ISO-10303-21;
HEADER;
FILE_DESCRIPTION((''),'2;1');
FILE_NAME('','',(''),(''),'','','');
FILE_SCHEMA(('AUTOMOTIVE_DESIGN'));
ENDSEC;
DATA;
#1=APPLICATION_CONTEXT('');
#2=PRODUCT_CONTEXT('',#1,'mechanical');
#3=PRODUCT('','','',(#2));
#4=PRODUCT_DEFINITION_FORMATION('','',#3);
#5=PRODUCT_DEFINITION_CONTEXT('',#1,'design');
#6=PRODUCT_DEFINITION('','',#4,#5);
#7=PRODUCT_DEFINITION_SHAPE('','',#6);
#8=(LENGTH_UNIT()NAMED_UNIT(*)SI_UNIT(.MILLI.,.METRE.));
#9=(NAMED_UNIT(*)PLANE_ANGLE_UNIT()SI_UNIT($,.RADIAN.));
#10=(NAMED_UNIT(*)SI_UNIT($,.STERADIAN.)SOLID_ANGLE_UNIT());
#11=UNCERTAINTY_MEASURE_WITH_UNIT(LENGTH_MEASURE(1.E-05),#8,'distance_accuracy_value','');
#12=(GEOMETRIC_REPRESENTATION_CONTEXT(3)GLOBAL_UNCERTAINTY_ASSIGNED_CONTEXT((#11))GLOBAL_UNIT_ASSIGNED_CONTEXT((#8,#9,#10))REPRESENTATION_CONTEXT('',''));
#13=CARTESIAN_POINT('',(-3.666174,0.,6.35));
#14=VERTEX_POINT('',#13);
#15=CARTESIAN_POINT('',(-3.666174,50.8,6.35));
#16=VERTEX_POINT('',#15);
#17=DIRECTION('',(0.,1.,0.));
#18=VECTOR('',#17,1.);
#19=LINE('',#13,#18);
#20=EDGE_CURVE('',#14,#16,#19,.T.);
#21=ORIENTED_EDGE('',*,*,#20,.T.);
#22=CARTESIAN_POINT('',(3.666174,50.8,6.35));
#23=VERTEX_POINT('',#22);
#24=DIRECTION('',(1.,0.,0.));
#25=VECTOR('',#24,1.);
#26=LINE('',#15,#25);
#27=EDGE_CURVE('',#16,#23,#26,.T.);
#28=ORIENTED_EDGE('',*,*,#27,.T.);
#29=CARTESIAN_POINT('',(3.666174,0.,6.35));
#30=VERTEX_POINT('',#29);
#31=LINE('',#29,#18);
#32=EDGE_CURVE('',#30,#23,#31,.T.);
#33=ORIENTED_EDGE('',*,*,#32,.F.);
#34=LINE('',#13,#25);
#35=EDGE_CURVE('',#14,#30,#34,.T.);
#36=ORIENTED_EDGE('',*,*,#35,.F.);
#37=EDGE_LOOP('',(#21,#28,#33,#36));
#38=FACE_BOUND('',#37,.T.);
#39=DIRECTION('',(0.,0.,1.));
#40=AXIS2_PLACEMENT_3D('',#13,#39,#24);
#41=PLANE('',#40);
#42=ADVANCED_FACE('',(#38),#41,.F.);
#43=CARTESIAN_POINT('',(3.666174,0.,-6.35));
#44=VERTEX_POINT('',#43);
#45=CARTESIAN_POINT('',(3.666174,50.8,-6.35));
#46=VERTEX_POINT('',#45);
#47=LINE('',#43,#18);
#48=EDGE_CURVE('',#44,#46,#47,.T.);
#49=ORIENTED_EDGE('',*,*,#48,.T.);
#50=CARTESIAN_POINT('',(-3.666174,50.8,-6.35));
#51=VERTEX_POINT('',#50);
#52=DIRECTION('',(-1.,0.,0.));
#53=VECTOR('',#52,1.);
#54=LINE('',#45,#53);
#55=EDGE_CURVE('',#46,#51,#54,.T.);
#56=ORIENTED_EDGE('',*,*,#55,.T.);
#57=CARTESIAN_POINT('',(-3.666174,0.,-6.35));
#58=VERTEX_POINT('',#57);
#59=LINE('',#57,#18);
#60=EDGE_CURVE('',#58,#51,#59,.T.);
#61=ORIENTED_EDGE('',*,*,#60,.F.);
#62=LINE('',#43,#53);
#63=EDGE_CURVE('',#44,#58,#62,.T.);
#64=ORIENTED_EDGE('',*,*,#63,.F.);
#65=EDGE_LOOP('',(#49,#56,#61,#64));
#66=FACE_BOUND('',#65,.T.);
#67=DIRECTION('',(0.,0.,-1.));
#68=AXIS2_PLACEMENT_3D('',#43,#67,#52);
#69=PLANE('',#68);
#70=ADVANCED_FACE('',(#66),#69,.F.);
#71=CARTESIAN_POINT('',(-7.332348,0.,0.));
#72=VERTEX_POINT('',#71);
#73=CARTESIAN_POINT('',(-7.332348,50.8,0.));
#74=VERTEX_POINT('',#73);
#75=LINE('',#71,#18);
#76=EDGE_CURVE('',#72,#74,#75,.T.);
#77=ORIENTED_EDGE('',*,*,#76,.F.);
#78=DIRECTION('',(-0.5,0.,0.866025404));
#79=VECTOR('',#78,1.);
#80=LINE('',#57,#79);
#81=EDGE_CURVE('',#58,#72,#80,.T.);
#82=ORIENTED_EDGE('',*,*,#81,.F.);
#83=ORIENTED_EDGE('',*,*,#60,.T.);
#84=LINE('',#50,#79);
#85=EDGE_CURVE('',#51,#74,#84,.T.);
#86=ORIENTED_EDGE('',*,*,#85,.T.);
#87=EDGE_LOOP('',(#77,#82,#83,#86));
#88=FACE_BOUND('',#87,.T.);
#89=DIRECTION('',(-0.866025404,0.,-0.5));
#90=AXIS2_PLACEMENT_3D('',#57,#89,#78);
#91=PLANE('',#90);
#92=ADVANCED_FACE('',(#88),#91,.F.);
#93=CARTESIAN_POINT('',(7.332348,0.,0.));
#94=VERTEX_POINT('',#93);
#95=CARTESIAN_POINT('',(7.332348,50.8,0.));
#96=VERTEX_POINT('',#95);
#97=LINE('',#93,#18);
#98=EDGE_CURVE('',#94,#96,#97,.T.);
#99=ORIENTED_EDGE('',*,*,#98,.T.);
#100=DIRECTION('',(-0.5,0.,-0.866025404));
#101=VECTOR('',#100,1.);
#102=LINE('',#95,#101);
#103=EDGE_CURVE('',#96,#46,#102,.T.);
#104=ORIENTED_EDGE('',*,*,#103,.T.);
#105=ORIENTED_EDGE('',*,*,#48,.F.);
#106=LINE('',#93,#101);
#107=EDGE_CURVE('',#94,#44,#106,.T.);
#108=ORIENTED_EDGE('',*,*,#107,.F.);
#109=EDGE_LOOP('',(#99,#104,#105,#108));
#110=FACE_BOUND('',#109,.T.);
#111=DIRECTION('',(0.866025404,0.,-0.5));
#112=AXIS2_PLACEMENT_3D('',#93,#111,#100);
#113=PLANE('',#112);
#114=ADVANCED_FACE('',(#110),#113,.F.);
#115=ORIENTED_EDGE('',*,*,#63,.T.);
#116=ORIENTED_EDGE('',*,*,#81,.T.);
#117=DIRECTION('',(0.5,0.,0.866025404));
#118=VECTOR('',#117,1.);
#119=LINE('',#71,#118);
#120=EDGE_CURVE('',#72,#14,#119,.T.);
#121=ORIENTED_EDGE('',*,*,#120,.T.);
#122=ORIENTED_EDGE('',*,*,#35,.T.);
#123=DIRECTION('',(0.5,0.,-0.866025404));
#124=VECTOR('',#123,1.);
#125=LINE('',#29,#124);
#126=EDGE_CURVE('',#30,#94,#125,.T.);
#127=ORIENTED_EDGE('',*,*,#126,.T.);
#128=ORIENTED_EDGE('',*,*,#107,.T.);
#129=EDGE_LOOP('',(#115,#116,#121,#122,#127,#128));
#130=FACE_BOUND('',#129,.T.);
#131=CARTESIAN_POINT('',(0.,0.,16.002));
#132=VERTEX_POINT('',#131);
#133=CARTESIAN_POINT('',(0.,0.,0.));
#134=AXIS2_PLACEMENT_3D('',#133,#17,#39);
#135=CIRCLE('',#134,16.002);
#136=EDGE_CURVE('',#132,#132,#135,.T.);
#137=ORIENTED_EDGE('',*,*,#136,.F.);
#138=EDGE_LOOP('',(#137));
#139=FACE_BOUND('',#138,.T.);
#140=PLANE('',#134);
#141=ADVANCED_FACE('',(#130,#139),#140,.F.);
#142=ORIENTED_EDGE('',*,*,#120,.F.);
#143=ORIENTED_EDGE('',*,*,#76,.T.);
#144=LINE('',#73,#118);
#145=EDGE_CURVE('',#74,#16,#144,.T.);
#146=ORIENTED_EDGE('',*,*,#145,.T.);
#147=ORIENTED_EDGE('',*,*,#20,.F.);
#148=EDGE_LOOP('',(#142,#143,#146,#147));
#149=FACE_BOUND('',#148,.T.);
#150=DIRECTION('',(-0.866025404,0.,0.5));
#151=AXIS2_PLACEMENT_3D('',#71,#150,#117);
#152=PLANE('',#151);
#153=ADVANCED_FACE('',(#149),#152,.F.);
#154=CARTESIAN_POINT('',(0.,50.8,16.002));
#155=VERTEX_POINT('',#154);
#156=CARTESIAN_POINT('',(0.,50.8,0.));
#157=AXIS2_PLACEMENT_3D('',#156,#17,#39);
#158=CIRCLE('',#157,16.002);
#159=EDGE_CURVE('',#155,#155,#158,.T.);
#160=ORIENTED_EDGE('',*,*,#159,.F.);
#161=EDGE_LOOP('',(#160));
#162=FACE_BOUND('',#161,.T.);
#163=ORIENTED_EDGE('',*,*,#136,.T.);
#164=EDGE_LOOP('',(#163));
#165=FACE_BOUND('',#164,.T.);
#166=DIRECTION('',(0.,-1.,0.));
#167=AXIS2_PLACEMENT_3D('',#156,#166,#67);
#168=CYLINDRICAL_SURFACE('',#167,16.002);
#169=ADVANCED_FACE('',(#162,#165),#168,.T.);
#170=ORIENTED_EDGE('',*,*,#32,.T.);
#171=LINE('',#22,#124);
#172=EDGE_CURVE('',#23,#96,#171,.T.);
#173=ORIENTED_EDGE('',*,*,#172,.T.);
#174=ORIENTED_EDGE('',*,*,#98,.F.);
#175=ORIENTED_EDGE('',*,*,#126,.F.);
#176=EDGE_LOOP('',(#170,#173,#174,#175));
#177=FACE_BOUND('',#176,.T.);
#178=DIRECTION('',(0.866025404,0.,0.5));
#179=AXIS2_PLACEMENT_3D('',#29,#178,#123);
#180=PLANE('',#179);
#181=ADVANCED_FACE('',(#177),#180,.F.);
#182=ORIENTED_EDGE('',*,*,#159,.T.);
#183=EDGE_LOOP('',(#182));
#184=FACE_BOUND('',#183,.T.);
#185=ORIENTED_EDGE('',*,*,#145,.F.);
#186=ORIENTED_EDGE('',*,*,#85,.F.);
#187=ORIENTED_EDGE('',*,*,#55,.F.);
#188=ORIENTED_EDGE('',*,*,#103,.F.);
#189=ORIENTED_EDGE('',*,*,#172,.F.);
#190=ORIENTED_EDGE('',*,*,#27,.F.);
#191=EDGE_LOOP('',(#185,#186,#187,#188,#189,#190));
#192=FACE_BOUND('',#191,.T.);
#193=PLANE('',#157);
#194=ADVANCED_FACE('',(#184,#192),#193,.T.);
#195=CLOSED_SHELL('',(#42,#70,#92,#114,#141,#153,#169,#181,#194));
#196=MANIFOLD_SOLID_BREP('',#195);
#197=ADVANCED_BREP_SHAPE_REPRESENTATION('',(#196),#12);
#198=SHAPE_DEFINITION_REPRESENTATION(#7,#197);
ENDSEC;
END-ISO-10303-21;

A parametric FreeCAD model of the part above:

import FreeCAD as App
import Part
import Sketcher

V = App.Vector
Q = App.Units.Quantity


def add_polygon(sketch, points):
    """Adds a closed chain of lines whose ends are joined by coincident constraints."""
    first, n = sketch.GeometryCount, len(points)
    for a, b in zip(points, points[1:] + points[:1]):
        sketch.addGeometry(Part.LineSegment(App.Vector(*a, 0), App.Vector(*b, 0)), False)
    for i in range(n):
        sketch.addConstraint(Sketcher.Constraint("Coincident", first + i, 2, first + (i + 1) % n, 1))

doc = App.newDocument("Part")
body = doc.addObject("PartDesign::Body", "Body")

sketch1 = body.newObject("Sketcher::SketchObject", "Sketch")
sketch1.AttachmentSupport = (doc.getObject("XZ_Plane"), [""])
sketch1.MapMode = "FlatFace"
sketch1.addGeometry(Part.Circle(V(0, 0, 0), V(0, 0, 1), 16.002), False)
sketch1.addConstraint([
    Sketcher.Constraint("Coincident", 0, 3, -1, 1),
    Sketcher.Constraint("Diameter", 0, Q("1.26 in")),
])
pad1 = body.newObject("PartDesign::Pad", "Pad")
pad1.Profile = sketch1
pad1.Length = Q("2 in")
pad1.Reversed = True

sketch2 = body.newObject("Sketcher::SketchObject", "Sketch001")
sketch2.AttachmentSupport = (doc.getObject("XZ_Plane"), [""])
sketch2.MapMode = "FlatFace"
sketch2.AttachmentOffset = App.Placement(V(0, 0, -2 * 25.4), App.Rotation())
add_polygon(sketch2, [(7.332348, 0), (3.666174, -6.35), (-3.666174, -6.35), (-7.332348, 0), (-3.666174, 6.35), (3.666174, 6.35)])
sketch2.addConstraint([
    Sketcher.Constraint("Horizontal", 1),
    Sketcher.Constraint("Horizontal", 4),
    Sketcher.Constraint("Symmetric", 0, 2, 3, 2, -1, 1),
    Sketcher.Constraint("Symmetric", 2, 2, 5, 2, -1, 1),
    Sketcher.Constraint("PointOnObject", 2, 2, -1),
    Sketcher.Constraint("Parallel", 2, 5),
    Sketcher.Constraint("Vertical", 1, 2, 3, 2),
    Sketcher.Constraint("Angle", 0, Q("-120 deg")),
    Sketcher.Constraint("DistanceY", 1, 2, 3, 2, Q("0.5 in")),
    Sketcher.Constraint("DistanceX", 1, 2, 1, 1, 7.332348),
])
pocket1 = body.newObject("PartDesign::Pocket", "Pocket")
pocket1.Profile = sketch2
pocket1.Type = "ThroughAll"
pocket1.Reversed = True

doc.recompute()
